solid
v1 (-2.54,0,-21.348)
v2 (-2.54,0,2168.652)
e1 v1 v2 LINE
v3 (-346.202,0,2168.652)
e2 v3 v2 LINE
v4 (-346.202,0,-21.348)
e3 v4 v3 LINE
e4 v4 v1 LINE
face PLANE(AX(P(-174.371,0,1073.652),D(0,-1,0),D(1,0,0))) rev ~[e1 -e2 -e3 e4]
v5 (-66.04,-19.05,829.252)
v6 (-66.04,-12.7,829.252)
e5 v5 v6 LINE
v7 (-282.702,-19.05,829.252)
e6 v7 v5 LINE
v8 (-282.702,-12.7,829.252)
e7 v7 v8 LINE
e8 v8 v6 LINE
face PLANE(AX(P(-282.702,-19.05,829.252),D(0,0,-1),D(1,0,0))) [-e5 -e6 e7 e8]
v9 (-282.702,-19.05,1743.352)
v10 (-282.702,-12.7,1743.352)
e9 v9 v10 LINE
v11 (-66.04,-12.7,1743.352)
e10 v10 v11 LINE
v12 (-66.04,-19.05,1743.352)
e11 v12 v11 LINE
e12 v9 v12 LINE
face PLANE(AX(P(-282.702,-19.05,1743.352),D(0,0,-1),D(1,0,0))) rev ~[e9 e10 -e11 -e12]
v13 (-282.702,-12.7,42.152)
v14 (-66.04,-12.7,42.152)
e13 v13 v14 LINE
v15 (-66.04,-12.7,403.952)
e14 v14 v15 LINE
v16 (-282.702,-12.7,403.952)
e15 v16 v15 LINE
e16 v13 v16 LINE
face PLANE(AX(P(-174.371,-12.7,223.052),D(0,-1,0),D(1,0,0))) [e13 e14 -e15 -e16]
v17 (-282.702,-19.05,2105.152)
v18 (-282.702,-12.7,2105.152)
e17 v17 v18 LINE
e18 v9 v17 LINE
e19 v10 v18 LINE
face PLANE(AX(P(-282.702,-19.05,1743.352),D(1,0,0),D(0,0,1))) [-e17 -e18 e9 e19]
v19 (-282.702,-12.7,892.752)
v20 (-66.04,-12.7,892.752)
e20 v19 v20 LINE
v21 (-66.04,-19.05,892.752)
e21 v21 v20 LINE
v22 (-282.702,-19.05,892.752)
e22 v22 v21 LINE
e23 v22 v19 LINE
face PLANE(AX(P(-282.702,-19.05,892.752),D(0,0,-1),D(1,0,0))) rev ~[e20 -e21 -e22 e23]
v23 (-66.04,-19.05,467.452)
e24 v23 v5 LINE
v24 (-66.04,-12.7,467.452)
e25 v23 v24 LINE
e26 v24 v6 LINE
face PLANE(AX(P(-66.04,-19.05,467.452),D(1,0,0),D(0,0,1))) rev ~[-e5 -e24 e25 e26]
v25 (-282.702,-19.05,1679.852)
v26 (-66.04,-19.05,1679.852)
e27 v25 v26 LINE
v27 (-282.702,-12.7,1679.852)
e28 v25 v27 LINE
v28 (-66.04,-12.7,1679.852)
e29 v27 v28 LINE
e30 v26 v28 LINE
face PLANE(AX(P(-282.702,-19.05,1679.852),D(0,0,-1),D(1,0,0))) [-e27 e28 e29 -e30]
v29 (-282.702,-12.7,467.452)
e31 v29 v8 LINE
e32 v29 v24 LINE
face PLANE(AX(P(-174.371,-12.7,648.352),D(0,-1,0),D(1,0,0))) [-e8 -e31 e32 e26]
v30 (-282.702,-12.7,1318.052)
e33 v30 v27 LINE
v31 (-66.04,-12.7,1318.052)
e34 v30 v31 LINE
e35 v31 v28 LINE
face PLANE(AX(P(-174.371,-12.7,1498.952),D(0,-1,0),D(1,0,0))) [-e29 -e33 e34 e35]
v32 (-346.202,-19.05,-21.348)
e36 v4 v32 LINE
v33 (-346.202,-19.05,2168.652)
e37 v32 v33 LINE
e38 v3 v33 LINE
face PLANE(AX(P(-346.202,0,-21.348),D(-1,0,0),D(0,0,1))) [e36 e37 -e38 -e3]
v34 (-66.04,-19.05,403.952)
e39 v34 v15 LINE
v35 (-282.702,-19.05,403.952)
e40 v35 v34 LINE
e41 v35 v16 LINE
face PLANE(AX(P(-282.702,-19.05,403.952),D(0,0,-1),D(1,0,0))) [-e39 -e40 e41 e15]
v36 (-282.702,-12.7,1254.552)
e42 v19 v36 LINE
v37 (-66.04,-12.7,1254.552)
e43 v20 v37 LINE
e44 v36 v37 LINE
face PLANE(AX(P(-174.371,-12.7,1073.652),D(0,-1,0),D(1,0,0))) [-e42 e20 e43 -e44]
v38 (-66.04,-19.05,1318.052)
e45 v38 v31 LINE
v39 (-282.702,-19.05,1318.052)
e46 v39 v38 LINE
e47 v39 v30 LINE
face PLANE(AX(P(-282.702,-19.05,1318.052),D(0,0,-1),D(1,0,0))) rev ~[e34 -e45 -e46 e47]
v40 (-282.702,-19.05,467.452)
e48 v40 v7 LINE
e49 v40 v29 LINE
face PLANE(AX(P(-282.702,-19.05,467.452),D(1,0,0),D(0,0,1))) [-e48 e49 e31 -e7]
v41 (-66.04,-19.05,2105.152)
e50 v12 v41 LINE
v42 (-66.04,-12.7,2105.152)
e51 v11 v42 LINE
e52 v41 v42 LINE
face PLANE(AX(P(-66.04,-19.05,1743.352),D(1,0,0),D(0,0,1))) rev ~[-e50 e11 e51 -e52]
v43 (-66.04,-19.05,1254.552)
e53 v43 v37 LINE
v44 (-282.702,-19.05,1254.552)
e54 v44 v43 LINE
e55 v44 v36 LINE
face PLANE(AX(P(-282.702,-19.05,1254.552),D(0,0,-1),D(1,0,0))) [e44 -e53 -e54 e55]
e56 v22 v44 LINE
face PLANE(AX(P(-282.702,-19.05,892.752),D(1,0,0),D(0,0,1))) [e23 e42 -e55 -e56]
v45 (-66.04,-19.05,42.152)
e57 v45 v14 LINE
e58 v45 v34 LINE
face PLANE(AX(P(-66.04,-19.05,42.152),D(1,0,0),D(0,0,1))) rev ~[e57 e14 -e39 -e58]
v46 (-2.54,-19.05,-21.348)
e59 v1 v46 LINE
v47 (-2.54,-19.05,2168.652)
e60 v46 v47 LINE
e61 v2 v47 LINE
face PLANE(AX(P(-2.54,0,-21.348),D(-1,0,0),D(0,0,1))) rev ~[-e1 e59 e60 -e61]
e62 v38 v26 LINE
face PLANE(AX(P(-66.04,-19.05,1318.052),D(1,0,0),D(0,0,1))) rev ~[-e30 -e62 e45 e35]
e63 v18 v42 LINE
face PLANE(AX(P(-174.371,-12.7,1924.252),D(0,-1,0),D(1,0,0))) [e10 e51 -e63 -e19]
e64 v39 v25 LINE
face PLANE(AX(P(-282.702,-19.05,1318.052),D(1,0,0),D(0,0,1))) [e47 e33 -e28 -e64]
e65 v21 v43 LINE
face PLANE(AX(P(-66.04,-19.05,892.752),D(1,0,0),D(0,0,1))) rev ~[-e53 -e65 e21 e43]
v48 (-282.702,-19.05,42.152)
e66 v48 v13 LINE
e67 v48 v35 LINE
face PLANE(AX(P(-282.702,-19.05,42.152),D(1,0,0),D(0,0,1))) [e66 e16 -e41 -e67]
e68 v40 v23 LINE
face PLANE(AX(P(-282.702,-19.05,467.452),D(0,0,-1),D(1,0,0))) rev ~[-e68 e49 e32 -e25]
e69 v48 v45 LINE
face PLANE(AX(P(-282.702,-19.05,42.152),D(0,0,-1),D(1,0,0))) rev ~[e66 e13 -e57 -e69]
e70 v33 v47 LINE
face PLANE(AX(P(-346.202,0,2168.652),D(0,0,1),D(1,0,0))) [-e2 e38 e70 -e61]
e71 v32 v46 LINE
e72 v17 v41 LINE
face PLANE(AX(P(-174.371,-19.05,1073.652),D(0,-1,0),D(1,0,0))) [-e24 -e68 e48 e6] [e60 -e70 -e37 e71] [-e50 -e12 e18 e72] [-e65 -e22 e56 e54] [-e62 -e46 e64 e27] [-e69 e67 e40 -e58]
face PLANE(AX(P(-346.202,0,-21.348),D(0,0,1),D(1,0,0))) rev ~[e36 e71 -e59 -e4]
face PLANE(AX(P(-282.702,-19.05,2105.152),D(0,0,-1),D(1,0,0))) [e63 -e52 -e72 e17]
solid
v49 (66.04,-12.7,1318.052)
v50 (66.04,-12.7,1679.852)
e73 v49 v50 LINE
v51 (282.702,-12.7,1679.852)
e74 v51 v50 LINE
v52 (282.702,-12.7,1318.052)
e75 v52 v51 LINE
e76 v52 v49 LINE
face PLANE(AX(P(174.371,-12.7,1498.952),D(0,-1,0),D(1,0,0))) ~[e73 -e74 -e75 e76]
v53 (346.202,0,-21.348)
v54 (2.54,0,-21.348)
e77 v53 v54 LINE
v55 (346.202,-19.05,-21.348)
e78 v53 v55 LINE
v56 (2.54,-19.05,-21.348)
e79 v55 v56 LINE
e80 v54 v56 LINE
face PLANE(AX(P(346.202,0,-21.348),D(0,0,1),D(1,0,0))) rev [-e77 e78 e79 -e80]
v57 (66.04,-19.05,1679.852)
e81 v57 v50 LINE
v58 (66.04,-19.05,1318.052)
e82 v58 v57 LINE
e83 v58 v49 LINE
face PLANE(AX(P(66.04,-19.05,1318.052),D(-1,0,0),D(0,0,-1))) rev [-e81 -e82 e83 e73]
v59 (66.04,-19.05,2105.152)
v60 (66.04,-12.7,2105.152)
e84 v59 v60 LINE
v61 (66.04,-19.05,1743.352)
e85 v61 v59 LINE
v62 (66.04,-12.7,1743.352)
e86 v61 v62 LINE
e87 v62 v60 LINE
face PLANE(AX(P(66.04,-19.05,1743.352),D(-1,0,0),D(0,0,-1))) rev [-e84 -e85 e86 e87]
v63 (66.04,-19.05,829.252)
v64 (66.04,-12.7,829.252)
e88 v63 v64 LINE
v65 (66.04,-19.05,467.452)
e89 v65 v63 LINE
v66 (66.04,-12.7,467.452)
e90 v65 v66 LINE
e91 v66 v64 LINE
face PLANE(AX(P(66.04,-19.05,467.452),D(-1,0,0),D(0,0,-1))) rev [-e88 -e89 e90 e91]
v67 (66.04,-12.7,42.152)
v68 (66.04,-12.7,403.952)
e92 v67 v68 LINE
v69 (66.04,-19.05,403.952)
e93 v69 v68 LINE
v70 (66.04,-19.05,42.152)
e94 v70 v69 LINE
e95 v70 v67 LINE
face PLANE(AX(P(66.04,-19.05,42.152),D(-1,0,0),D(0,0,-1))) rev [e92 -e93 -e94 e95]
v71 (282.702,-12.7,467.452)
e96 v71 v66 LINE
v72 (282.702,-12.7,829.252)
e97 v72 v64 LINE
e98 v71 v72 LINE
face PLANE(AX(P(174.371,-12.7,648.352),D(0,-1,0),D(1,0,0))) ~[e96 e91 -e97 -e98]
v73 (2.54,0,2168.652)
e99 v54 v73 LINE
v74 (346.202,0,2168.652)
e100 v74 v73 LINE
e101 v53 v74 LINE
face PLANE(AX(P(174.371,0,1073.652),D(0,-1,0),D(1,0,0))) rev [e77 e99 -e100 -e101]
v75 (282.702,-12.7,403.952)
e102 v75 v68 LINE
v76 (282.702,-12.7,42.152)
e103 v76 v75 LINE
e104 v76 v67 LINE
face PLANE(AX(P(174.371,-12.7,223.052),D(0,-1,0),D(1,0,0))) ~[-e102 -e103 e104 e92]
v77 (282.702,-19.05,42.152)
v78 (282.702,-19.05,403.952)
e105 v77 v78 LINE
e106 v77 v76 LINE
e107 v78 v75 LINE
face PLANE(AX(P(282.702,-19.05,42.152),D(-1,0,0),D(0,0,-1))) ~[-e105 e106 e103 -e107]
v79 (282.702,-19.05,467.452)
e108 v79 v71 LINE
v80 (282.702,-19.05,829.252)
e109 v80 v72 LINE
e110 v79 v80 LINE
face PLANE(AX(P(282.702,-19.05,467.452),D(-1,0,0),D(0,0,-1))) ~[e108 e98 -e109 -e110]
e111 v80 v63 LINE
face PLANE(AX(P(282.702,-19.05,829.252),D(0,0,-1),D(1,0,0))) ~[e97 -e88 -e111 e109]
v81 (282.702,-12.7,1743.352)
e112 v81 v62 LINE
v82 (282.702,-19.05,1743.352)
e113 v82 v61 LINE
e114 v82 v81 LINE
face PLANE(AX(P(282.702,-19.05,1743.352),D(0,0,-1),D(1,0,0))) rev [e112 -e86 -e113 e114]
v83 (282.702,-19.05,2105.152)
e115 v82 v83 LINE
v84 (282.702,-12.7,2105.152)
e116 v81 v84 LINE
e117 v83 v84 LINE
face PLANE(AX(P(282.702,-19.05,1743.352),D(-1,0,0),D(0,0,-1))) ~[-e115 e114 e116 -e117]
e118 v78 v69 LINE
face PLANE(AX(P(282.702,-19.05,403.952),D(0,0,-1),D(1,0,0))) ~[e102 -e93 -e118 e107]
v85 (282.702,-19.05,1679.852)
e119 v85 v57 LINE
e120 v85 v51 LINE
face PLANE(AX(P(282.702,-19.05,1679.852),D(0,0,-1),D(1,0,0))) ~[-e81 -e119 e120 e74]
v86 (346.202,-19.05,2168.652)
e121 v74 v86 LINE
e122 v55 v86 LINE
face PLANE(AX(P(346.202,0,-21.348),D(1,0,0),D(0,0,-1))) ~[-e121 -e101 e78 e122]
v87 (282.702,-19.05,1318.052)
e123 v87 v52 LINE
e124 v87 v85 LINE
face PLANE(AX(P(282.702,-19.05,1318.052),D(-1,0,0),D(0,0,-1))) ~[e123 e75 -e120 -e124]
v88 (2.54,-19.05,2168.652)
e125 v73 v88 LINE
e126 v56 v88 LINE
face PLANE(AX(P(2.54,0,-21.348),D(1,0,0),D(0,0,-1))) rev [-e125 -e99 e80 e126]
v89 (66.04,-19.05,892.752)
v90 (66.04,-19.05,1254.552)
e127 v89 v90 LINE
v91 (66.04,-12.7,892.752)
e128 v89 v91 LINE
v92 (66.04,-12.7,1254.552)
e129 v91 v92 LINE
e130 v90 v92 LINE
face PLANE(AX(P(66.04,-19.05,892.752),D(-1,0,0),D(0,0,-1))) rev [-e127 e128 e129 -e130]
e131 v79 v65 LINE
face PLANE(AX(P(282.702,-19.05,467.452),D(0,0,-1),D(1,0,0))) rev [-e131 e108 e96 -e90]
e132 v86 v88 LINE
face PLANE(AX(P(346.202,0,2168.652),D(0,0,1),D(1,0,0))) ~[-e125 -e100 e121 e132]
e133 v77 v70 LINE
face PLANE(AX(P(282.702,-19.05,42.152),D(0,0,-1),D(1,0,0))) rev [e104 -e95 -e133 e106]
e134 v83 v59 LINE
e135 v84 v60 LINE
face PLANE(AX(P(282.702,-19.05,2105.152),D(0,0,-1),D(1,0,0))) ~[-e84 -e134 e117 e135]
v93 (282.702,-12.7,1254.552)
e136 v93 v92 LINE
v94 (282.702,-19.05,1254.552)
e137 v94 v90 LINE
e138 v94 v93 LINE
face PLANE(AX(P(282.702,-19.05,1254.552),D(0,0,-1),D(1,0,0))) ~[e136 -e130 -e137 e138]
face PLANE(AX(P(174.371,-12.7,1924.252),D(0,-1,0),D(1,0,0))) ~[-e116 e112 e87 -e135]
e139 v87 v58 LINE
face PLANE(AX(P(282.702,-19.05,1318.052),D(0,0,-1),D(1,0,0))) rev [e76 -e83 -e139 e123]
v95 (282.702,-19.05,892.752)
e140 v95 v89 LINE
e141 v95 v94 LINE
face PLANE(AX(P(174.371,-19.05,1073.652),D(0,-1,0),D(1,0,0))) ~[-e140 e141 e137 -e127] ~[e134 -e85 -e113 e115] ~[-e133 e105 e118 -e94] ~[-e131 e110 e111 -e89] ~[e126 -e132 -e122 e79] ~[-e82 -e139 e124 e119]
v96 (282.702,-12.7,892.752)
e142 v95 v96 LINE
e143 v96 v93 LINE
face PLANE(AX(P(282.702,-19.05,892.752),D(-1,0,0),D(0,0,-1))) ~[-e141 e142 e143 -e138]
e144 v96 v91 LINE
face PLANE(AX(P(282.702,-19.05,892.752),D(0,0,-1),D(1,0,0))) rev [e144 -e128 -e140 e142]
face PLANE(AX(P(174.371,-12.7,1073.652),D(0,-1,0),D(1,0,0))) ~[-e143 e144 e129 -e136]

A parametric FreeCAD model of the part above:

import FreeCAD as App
import Part
import Sketcher
from FreeCAD import Vector
Q = App.Units.Quantity

doc = App.newDocument("Part")
body = doc.addObject("PartDesign::Body", "Body")

sketch1 = body.newObject("Sketcher::SketchObject", "Sketch")
sketch1.AttachmentSupport = (doc.getObject("XZ_Plane"), [""])
sketch1.MapMode = "FlatFace"
sketch1.addGeometry(Part.LineSegment(Vector(-346.202, 2168.652, 0), Vector(-346.202, -21.348, 0)), False)
sketch1.addGeometry(Part.LineSegment(Vector(-346.202, -21.348, 0), Vector(-2.54, -21.348, 0)), False)
sketch1.addGeometry(Part.LineSegment(Vector(-2.54, -21.348, 0), Vector(-2.54, 2168.652, 0)), False)
sketch1.addGeometry(Part.LineSegment(Vector(-2.54, 2168.652, 0), Vector(-346.202, 2168.652, 0)), False)
sketch1.addConstraint(Sketcher.Constraint("Coincident", 0, 2, 1, 1))
sketch1.addConstraint(Sketcher.Constraint("Coincident", 1, 2, 2, 1))
sketch1.addConstraint(Sketcher.Constraint("Coincident", 2, 2, 3, 1))
sketch1.addConstraint(Sketcher.Constraint("Coincident", 3, 2, 0, 1))
sketch1.addConstraint(Sketcher.Constraint("Vertical", 0))
sketch1.addConstraint(Sketcher.Constraint("Horizontal", 1))
sketch1.addConstraint(Sketcher.Constraint("Vertical", 2))
sketch1.addConstraint(Sketcher.Constraint("Horizontal", 3))
sketch1.addConstraint(Sketcher.Constraint("DistanceX", 1, 1, 1, 2, Q("13.53 in")))
sketch1.addConstraint(Sketcher.Constraint("DistanceX", 1, 2, -1, 1, Q("0.1 in")))
sketch1.addConstraint(Sketcher.Constraint("DistanceY", -1, 1, 2, 2, Q("85.38 in")))
sketch1.addConstraint(Sketcher.Constraint("DistanceY", 0, 2, 0, 1, Q("2190 mm")))
pad1 = body.newObject("PartDesign::Pad", "Pad")
pad1.Profile = sketch1
pad1.Length = Q("0.75 in")

sketch2 = body.newObject("Sketcher::SketchObject", "Sketch001")
sketch2.AttachmentSupport = (doc.getObject("XZ_Plane"), [""])
sketch2.MapMode = "FlatFace"
sketch2.AttachmentOffset = App.Placement(Vector(0, 0, 0.75 * 25.4), App.Rotation())
sketch2.addGeometry(Part.LineSegment(Vector(-282.702, 403.952, 0), Vector(-282.702, 42.152, 0)), False)
sketch2.addGeometry(Part.LineSegment(Vector(-282.702, 42.152, 0), Vector(-66.04, 42.152, 0)), False)
sketch2.addGeometry(Part.LineSegment(Vector(-66.04, 42.152, 0), Vector(-66.04, 403.952, 0)), False)
sketch2.addGeometry(Part.LineSegment(Vector(-66.04, 403.952, 0), Vector(-282.702, 403.952, 0)), False)
sketch2.addGeometry(Part.LineSegment(Vector(-282.702, 829.252, 0), Vector(-282.702, 467.452, 0)), False)
sketch2.addGeometry(Part.LineSegment(Vector(-282.702, 467.452, 0), Vector(-66.04, 467.452, 0)), False)
sketch2.addGeometry(Part.LineSegment(Vector(-66.04, 467.452, 0), Vector(-66.04, 829.252, 0)), False)
sketch2.addGeometry(Part.LineSegment(Vector(-66.04, 829.252, 0), Vector(-282.702, 829.252, 0)), False)
sketch2.addGeometry(Part.LineSegment(Vector(-282.702, 1254.552, 0), Vector(-282.702, 892.752, 0)), False)
sketch2.addGeometry(Part.LineSegment(Vector(-282.702, 892.752, 0), Vector(-66.04, 892.752, 0)), False)
sketch2.addGeometry(Part.LineSegment(Vector(-66.04, 892.752, 0), Vector(-66.04, 1254.552, 0)), False)
sketch2.addGeometry(Part.LineSegment(Vector(-66.04, 1254.552, 0), Vector(-282.702, 1254.552, 0)), False)
sketch2.addGeometry(Part.LineSegment(Vector(-282.702, 1679.852, 0), Vector(-282.702, 1318.052, 0)), False)
sketch2.addGeometry(Part.LineSegment(Vector(-282.702, 1318.052, 0), Vector(-66.04, 1318.052, 0)), False)
sketch2.addGeometry(Part.LineSegment(Vector(-66.04, 1318.052, 0), Vector(-66.04, 1679.852, 0)), False)
sketch2.addGeometry(Part.LineSegment(Vector(-66.04, 1679.852, 0), Vector(-282.702, 1679.852, 0)), False)
sketch2.addGeometry(Part.LineSegment(Vector(-282.702, 2105.152, 0), Vector(-282.702, 1743.352, 0)), False)
sketch2.addGeometry(Part.LineSegment(Vector(-282.702, 1743.352, 0), Vector(-66.04, 1743.352, 0)), False)
sketch2.addGeometry(Part.LineSegment(Vector(-66.04, 1743.352, 0), Vector(-66.04, 2105.152, 0)), False)
sketch2.addGeometry(Part.LineSegment(Vector(-66.04, 2105.152, 0), Vector(-282.702, 2105.152, 0)), False)
sketch2.addConstraint(Sketcher.Constraint("Coincident", 0, 2, 1, 1))
sketch2.addConstraint(Sketcher.Constraint("Coincident", 1, 2, 2, 1))
sketch2.addConstraint(Sketcher.Constraint("Coincident", 2, 2, 3, 1))
sketch2.addConstraint(Sketcher.Constraint("Coincident", 3, 2, 0, 1))
sketch2.addConstraint(Sketcher.Constraint("Coincident", 4, 2, 5, 1))
sketch2.addConstraint(Sketcher.Constraint("Coincident", 5, 2, 6, 1))
sketch2.addConstraint(Sketcher.Constraint("Coincident", 6, 2, 7, 1))
sketch2.addConstraint(Sketcher.Constraint("Coincident", 7, 2, 4, 1))
sketch2.addConstraint(Sketcher.Constraint("Coincident", 8, 2, 9, 1))
sketch2.addConstraint(Sketcher.Constraint("Coincident", 9, 2, 10, 1))
sketch2.addConstraint(Sketcher.Constraint("Coincident", 10, 2, 11, 1))
sketch2.addConstraint(Sketcher.Constraint("Coincident", 11, 2, 8, 1))
sketch2.addConstraint(Sketcher.Constraint("Coincident", 12, 2, 13, 1))
sketch2.addConstraint(Sketcher.Constraint("Coincident", 13, 2, 14, 1))
sketch2.addConstraint(Sketcher.Constraint("Coincident", 14, 2, 15, 1))
sketch2.addConstraint(Sketcher.Constraint("Coincident", 15, 2, 12, 1))
sketch2.addConstraint(Sketcher.Constraint("Coincident", 16, 2, 17, 1))
sketch2.addConstraint(Sketcher.Constraint("Coincident", 17, 2, 18, 1))
sketch2.addConstraint(Sketcher.Constraint("Coincident", 18, 2, 19, 1))
sketch2.addConstraint(Sketcher.Constraint("Coincident", 19, 2, 16, 1))
sketch2.addConstraint(Sketcher.Constraint("Vertical", 0))
sketch2.addConstraint(Sketcher.Constraint("Horizontal", 1))
sketch2.addConstraint(Sketcher.Constraint("Vertical", 2))
sketch2.addConstraint(Sketcher.Constraint("Horizontal", 3))
sketch2.addConstraint(Sketcher.Constraint("Vertical", 4))
sketch2.addConstraint(Sketcher.Constraint("Horizontal", 5))
sketch2.addConstraint(Sketcher.Constraint("Vertical", 6))
sketch2.addConstraint(Sketcher.Constraint("Horizontal", 7))
sketch2.addConstraint(Sketcher.Constraint("Vertical", 8))
sketch2.addConstraint(Sketcher.Constraint("Horizontal", 9))
sketch2.addConstraint(Sketcher.Constraint("Vertical", 10))
sketch2.addConstraint(Sketcher.Constraint("Horizontal", 11))
sketch2.addConstraint(Sketcher.Constraint("Vertical", 12))
sketch2.addConstraint(Sketcher.Constraint("Horizontal", 13))
sketch2.addConstraint(Sketcher.Constraint("Vertical", 14))
sketch2.addConstraint(Sketcher.Constraint("Horizontal", 15))
sketch2.addConstraint(Sketcher.Constraint("Vertical", 16))
sketch2.addConstraint(Sketcher.Constraint("Horizontal", 17))
sketch2.addConstraint(Sketcher.Constraint("Vertical", 18))
sketch2.addConstraint(Sketcher.Constraint("Horizontal", 19))
sketch2.addConstraint(Sketcher.Constraint("Vertical", 3, 2, 4, 2))
sketch2.addConstraint(Sketcher.Constraint("Vertical", 2, 2, 5, 2))
sketch2.addConstraint(Sketcher.Constraint("Vertical", 7, 2, 8, 2))
sketch2.addConstraint(Sketcher.Constraint("Vertical", 6, 2, 9, 2))
sketch2.addConstraint(Sketcher.Constraint("Vertical", 11, 2, 12, 2))
sketch2.addConstraint(Sketcher.Constraint("Vertical", 10, 2, 13, 2))
sketch2.addConstraint(Sketcher.Constraint("Vertical", 15, 2, 16, 2))
sketch2.addConstraint(Sketcher.Constraint("Vertical", 14, 2, 17, 2))
sketch2.addConstraint(Sketcher.Constraint("Equal", 2, 4))
sketch2.addConstraint(Sketcher.Constraint("Equal", 6, 8))
sketch2.addConstraint(Sketcher.Constraint("Equal", 10, 12))
sketch2.addConstraint(Sketcher.Constraint("Equal", 14, 16))
sketch2.addConstraint(Sketcher.Constraint("DistanceX", 1, 1, 1, 2, Q("8.53 in")))
sketch2.addConstraint(Sketcher.Constraint("DistanceX", 1, 2, -1, 1, Q("2.6 in")))
sketch2.addConstraint(Sketcher.Constraint("DistanceY", 3, 2, 4, 2, Q("2.5 in")))
sketch2.addConstraint(Sketcher.Constraint("DistanceY", 7, 2, 8, 2, Q("2.5 in")))
sketch2.addConstraint(Sketcher.Constraint("DistanceY", 11, 2, 12, 2, Q("2.5 in")))
sketch2.addConstraint(Sketcher.Constraint("DistanceY", 15, 2, 16, 2, Q("2.5 in")))
sketch2.addConstraint(Sketcher.Constraint("DistanceY", -1, 1, 18, 2, Q("82.88 in")))
sketch2.addConstraint(Sketcher.Constraint("DistanceY", 0, 2, 0, 1, Q("361.8 mm")))
pocket1 = body.newObject("PartDesign::Pocket", "Pocket")
pocket1.Profile = sketch2
pocket1.Length = Q("0.25 in")
body2 = doc.addObject("PartDesign::Body", "Body001")
doc.recompute()

mirroring = doc.addObject("Part::Mirroring", "Mirroring")
mirroring.Source = body
mirroring.Base = Vector(0, 0, 0)
mirroring.Normal = Vector(1, 0, 0)
body2.BaseFeature = mirroring
doc.recompute()
mirroring.Visibility = False

doc.recompute()
